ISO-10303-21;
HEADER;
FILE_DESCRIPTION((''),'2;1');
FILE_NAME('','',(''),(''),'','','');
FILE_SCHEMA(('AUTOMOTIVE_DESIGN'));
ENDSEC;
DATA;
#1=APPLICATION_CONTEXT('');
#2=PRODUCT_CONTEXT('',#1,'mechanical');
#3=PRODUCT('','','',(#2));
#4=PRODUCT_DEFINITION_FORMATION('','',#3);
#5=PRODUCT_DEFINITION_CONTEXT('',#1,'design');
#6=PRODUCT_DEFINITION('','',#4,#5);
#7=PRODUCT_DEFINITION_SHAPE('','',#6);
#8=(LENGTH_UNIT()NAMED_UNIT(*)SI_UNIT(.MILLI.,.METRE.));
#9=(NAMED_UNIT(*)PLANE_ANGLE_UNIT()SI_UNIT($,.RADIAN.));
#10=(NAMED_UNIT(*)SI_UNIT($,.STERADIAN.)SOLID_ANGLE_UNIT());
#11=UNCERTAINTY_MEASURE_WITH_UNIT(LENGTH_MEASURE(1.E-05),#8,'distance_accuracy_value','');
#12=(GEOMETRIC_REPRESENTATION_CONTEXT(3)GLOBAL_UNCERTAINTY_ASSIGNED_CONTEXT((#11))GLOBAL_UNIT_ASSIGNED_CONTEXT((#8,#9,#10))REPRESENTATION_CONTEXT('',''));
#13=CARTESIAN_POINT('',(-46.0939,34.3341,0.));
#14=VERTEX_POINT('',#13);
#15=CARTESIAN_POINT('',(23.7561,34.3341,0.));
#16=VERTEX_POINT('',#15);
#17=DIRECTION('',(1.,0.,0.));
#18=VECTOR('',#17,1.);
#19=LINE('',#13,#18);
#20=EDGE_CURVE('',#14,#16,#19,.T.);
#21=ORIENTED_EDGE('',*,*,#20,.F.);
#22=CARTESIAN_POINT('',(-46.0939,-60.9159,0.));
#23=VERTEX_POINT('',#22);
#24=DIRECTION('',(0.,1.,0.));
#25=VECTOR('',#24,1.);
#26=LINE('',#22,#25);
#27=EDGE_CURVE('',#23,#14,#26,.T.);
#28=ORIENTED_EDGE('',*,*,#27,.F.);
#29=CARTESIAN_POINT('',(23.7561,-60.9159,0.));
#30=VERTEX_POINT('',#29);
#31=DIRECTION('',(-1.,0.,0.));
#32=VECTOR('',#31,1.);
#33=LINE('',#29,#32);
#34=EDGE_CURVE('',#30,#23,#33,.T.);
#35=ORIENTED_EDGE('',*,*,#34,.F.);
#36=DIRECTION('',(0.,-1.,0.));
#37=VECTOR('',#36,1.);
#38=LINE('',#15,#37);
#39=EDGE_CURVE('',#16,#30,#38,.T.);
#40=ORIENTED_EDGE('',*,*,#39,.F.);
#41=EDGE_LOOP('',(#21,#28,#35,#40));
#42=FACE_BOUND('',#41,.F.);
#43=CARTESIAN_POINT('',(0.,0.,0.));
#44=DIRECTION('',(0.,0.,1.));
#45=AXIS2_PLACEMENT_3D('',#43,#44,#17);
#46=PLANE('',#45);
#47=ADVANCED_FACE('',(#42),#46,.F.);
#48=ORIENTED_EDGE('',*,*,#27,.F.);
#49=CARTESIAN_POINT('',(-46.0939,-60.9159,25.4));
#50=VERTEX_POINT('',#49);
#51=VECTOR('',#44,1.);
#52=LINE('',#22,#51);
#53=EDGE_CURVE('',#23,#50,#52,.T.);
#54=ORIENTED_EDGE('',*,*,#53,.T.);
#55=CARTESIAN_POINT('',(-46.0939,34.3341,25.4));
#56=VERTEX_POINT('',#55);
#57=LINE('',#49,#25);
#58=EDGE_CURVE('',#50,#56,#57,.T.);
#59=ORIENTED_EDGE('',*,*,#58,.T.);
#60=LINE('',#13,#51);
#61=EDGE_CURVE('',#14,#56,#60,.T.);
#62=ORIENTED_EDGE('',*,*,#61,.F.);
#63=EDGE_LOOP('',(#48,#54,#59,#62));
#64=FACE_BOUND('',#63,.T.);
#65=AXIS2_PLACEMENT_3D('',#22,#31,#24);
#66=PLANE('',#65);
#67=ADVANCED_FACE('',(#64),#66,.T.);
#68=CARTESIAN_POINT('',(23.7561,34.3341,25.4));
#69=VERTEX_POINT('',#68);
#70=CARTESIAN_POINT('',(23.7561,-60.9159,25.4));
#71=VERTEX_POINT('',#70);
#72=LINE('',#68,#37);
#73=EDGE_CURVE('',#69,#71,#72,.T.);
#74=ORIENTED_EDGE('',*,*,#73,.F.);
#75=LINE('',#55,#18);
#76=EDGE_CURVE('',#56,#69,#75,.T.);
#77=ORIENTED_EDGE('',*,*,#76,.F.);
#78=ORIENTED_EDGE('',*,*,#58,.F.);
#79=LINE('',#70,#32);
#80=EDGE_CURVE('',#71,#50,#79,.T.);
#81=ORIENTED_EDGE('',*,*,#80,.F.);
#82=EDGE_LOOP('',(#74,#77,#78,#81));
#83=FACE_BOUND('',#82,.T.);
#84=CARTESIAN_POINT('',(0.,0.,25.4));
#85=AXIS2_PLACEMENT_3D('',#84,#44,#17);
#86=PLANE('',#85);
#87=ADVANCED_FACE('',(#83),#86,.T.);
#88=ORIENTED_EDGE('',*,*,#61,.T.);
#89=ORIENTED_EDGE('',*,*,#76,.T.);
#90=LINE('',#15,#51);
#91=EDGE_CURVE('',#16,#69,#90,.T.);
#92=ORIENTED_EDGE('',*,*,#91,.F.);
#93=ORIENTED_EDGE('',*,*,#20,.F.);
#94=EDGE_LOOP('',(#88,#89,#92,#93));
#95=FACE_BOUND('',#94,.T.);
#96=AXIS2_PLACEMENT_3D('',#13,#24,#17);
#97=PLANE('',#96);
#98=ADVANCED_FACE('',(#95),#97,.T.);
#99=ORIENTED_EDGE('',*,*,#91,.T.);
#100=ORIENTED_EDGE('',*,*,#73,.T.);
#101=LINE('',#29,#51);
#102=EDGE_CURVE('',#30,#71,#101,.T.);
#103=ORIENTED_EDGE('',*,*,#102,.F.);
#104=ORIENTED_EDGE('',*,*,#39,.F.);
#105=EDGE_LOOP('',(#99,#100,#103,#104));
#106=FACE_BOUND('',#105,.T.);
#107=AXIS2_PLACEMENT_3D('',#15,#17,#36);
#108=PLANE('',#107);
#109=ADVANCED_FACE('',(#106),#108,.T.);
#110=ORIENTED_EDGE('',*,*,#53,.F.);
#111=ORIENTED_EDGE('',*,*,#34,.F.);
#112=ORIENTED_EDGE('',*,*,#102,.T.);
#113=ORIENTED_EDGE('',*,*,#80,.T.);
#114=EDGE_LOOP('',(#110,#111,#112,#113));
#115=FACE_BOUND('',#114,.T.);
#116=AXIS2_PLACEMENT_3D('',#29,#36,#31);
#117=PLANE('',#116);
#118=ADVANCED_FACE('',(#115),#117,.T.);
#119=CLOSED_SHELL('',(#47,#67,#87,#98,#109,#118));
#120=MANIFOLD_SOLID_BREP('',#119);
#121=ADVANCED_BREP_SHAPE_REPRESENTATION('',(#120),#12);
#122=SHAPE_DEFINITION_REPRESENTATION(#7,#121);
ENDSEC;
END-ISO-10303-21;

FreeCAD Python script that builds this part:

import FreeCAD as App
import Part
import Sketcher
from FreeCAD import Vector
Q = App.Units.Quantity

doc = App.newDocument("Part")
body = doc.addObject("PartDesign::Body", "Body")

sketch1 = body.newObject("Sketcher::SketchObject", "Sketch")
sketch1.AttachmentSupport = (doc.getObject("XY_Plane"), [""])
sketch1.MapMode = "FlatFace"
sketch1.addGeometry([
    Part.LineSegment(Vector(24, 34, 0), Vector(-46, 34, 0)),
    Part.LineSegment(Vector(-46, 34, 0), Vector(-46, -61, 0)),
    Part.LineSegment(Vector(-46, -61, 0), Vector(24, -61, 0)),
    Part.LineSegment(Vector(24, -61, 0), Vector(24, 34, 0)),
], False)
sketch1.addConstraint([
    Sketcher.Constraint("Coincident", 0, 2, 1, 1),
    Sketcher.Constraint("Coincident", 1, 2, 2, 1),
    Sketcher.Constraint("Coincident", 2, 2, 3, 1),
    Sketcher.Constraint("Coincident", 3, 2, 0, 1),
    Sketcher.Constraint("Horizontal", 0),
    Sketcher.Constraint("Vertical", 1),
    Sketcher.Constraint("Horizontal", 2),
    Sketcher.Constraint("Vertical", 3),
    Sketcher.Constraint("DistanceX", 0, 2, 0, 1, Q("2.75 in")),
    Sketcher.Constraint("DistanceY", 1, 2, 1, 1, Q("3.75 in")),
    Sketcher.Constraint("DistanceX", 0, 2, -1, 1, 46.094),
    Sketcher.Constraint("DistanceY", -1, 1, 0, 2, 34.334),
])
pad1 = body.newObject("PartDesign::Pad", "Pad")
pad1.Profile = sketch1
pad1.Length = Q("1 in")

doc.recompute()
